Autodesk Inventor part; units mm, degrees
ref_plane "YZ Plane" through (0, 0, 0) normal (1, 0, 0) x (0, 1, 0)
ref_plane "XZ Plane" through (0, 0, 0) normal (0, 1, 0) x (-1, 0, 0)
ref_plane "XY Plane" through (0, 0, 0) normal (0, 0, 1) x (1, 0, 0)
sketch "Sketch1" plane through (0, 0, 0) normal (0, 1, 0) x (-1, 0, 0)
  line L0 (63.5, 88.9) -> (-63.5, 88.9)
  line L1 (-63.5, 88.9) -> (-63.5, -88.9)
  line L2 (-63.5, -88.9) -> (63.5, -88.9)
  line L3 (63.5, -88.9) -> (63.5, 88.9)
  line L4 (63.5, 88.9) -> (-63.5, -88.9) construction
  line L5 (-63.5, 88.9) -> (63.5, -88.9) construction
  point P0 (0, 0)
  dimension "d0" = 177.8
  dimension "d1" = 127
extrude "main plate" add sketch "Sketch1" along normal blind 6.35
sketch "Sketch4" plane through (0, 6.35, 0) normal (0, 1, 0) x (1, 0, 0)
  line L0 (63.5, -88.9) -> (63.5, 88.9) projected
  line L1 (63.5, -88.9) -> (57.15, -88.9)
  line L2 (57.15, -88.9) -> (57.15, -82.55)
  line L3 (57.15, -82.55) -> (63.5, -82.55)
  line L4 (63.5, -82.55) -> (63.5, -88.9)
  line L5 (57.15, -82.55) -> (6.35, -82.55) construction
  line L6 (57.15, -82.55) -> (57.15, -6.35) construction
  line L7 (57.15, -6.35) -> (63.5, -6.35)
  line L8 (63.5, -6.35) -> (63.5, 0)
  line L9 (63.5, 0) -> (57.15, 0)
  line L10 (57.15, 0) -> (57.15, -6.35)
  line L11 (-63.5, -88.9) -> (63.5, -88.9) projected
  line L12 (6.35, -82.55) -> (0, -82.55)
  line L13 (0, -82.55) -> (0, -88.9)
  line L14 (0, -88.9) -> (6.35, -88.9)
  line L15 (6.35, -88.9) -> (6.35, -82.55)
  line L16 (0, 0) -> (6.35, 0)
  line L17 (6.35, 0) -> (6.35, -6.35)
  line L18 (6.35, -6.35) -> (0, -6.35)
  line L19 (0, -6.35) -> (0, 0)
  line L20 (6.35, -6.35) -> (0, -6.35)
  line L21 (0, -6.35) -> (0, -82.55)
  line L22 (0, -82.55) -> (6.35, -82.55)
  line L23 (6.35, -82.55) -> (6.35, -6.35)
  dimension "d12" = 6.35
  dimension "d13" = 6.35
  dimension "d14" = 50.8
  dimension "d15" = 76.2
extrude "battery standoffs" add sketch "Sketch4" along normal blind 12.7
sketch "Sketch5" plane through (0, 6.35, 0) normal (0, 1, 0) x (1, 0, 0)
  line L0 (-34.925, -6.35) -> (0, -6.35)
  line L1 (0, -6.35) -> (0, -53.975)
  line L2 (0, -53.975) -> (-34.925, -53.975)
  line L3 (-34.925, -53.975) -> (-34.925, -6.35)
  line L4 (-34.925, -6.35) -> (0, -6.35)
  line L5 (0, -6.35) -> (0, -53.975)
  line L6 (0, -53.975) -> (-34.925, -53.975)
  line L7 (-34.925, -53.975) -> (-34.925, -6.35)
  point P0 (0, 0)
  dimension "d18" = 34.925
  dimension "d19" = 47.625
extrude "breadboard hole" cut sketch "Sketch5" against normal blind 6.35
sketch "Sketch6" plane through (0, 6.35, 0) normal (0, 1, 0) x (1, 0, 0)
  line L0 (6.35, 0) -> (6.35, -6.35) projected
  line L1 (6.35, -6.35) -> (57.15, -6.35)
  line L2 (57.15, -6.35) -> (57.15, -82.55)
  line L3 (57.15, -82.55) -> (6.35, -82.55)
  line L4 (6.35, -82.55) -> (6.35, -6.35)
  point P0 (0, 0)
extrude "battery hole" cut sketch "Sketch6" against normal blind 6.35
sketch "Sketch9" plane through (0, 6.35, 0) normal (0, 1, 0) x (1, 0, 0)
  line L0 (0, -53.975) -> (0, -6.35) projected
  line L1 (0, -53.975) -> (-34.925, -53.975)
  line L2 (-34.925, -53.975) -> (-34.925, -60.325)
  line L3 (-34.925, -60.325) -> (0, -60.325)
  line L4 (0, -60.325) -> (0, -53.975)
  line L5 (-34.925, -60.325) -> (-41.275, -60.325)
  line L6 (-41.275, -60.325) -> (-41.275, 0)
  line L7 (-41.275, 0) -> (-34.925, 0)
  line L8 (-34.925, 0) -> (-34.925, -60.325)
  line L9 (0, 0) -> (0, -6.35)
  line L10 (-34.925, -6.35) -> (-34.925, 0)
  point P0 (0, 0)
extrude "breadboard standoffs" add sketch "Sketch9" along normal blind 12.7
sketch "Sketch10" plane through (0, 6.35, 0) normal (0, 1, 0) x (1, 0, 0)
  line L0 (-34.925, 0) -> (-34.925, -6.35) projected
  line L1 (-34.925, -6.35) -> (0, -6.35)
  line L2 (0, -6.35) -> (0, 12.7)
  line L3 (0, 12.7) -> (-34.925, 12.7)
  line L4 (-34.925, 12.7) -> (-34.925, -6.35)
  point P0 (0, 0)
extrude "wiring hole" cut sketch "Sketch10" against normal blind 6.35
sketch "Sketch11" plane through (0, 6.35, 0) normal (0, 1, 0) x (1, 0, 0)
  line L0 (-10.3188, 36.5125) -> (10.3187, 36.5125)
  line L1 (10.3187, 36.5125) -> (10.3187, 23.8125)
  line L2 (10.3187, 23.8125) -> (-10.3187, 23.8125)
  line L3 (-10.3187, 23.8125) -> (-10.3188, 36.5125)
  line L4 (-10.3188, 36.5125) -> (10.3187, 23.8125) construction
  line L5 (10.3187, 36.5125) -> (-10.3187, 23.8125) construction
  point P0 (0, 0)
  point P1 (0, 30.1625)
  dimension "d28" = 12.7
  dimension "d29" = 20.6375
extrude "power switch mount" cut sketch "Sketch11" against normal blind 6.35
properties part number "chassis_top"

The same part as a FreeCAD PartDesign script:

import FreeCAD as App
import Part
import Sketcher

V = App.Vector
Q = App.Units.Quantity


def add_polygon(sketch, points):
    """Adds a closed chain of lines whose ends are joined by coincident constraints."""
    first, n = sketch.GeometryCount, len(points)
    for a, b in zip(points, points[1:] + points[:1]):
        sketch.addGeometry(Part.LineSegment(App.Vector(*a, 0), App.Vector(*b, 0)), False)
    for i in range(n):
        sketch.addConstraint(Sketcher.Constraint("Coincident", first + i, 2, first + (i + 1) % n, 1))

doc = App.newDocument("Part")
body = doc.addObject("PartDesign::Body", "Body")

# Sketch on XZ plane
sketch1 = body.newObject("Sketcher::SketchObject", "Sketch")
sketch1.AttachmentSupport = (doc.getObject("XZ_Plane"), [""])
sketch1.MapMode = "FlatFace"
add_polygon(sketch1, [(-63.5, -88.9), (-63.5, 88.9), (63.5, 88.9), (63.5, -88.9)])  # lines 0-3
sketch1.addConstraint(Sketcher.Constraint("Vertical", 0))
sketch1.addConstraint(Sketcher.Constraint("Horizontal", 1))
sketch1.addConstraint(Sketcher.Constraint("Vertical", 2))
sketch1.addConstraint(Sketcher.Constraint("Horizontal", 3))
sketch1.addConstraint(Sketcher.Constraint("Symmetric", 0, 2, 2, 2, -1, 1))
sketch1.addConstraint(Sketcher.Constraint("DistanceX", 1, 1, 1, 2, Q("5 in")))
sketch1.addConstraint(Sketcher.Constraint("DistanceY", 0, 1, 0, 2, Q("7 in")))
pad1 = body.newObject("PartDesign::Pad", "Pad")
pad1.Profile = sketch1
pad1.Length = Q("0.25 in")
pad1.Reversed = True

# Sketch on XZ plane
sketch2 = body.newObject("Sketcher::SketchObject", "Sketch001")
sketch2.AttachmentSupport = (doc.getObject("XZ_Plane"), [""])
sketch2.MapMode = "FlatFace"
sketch2.AttachmentOffset = App.Placement(V(0, 0, -0.25 * 25.4), App.Rotation())
add_polygon(sketch2, [(57.15, 88.9), (63.5, 88.9), (63.5, 82.55), (57.15, 82.55)])  # lines 0-3
add_polygon(sketch2, [(0, 88.9), (6.35, 88.9), (6.35, 0), (0, 0)])  # lines 4-7
add_polygon(sketch2, [(57.15, 6.35), (63.5, 6.35), (63.5, 0), (57.15, 0)])  # lines 8-11
sketch2.addConstraint(Sketcher.Constraint("Horizontal", 0))
sketch2.addConstraint(Sketcher.Constraint("Vertical", 1))
sketch2.addConstraint(Sketcher.Constraint("Horizontal", 2))
sketch2.addConstraint(Sketcher.Constraint("Vertical", 3))
sketch2.addConstraint(Sketcher.Constraint("Horizontal", 4))
sketch2.addConstraint(Sketcher.Constraint("Vertical", 5))
sketch2.addConstraint(Sketcher.Constraint("Horizontal", 6))
sketch2.addConstraint(Sketcher.Constraint("Vertical", 7))
sketch2.addConstraint(Sketcher.Constraint("Horizontal", 8))
sketch2.addConstraint(Sketcher.Constraint("Vertical", 9))
sketch2.addConstraint(Sketcher.Constraint("Horizontal", 10))
sketch2.addConstraint(Sketcher.Constraint("Vertical", 11))
sketch2.addConstraint(Sketcher.Constraint("Coincident", 6, 2, -1, 1))
sketch2.addConstraint(Sketcher.Constraint("PointOnObject", 9, 2, -1))
sketch2.addConstraint(Sketcher.Constraint("Horizontal", 3, 2, 4, 2))
sketch2.addConstraint(Sketcher.Constraint("Vertical", 1, 2, 8, 2))
sketch2.addConstraint(Sketcher.Constraint("Vertical", 3, 2, 10, 2))
sketch2.addConstraint(Sketcher.Constraint("Equal", 2, 4))
sketch2.addConstraint(Sketcher.Constraint("Equal", 10, 1))
sketch2.addConstraint(Sketcher.Constraint("Equal", 3, 9))
sketch2.addConstraint(Sketcher.Constraint("DistanceX", 4, 2, 3, 2, Q("2 in")))
sketch2.addConstraint(Sketcher.Constraint("DistanceY", 8, 2, 1, 2, Q("3 in")))
sketch2.addConstraint(Sketcher.Constraint("DistanceX", 0, 1, 0, 2, Q("0.25 in")))
pad2 = body.newObject("PartDesign::Pad", "Pad001")
pad2.Profile = sketch2
pad2.Length = Q("0.5 in")
pad2.Reversed = True

# Sketch on XZ plane
sketch3 = body.newObject("Sketcher::SketchObject", "Sketch002")
sketch3.AttachmentSupport = (doc.getObject("XZ_Plane"), [""])
sketch3.MapMode = "FlatFace"
sketch3.AttachmentOffset = App.Placement(V(0, 0, -0.25 * 25.4), App.Rotation())
add_polygon(sketch3, [(0, 6.35), (-34.925, 6.35), (-34.925, 53.975), (0, 53.975)])  # lines 0-3
sketch3.addConstraint(Sketcher.Constraint("Horizontal", 0))
sketch3.addConstraint(Sketcher.Constraint("Vertical", 1))
sketch3.addConstraint(Sketcher.Constraint("Horizontal", 2))
sketch3.addConstraint(Sketcher.Constraint("Vertical", 3))
sketch3.addConstraint(Sketcher.Constraint("PointOnObject", 2, 2, -2))
sketch3.addConstraint(Sketcher.Constraint("DistanceX", 0, 2, 0, 1, Q("1.375 in")))
sketch3.addConstraint(Sketcher.Constraint("DistanceY", 1, 1, 1, 2, Q("1.875 in")))
sketch3.addConstraint(Sketcher.Constraint("DistanceY", -1, 1, 0, 2, Q("0.25 in")))
pocket1 = body.newObject("PartDesign::Pocket", "Pocket")
pocket1.Profile = sketch3
pocket1.Length = Q("0.25 in")
pocket1.Reversed = True

# Sketch on XZ plane
sketch4 = body.newObject("Sketcher::SketchObject", "Sketch003")
sketch4.AttachmentSupport = (doc.getObject("XZ_Plane"), [""])
sketch4.MapMode = "FlatFace"
sketch4.AttachmentOffset = App.Placement(V(0, 0, -0.25 * 25.4), App.Rotation())
add_polygon(sketch4, [(57.15, 6.35), (6.35, 6.35), (6.35, 82.55), (57.15, 82.55)])  # lines 0-3
sketch4.addConstraint(Sketcher.Constraint("Horizontal", 0))
sketch4.addConstraint(Sketcher.Constraint("Vertical", 1))
sketch4.addConstraint(Sketcher.Constraint("Horizontal", 2))
sketch4.addConstraint(Sketcher.Constraint("Vertical", 3))
sketch4.addConstraint(Sketcher.Constraint("DistanceX", 0, 2, 0, 1, Q("2 in")))
sketch4.addConstraint(Sketcher.Constraint("DistanceY", 1, 1, 1, 2, Q("3 in")))
sketch4.addConstraint(Sketcher.Constraint("DistanceX", -1, 1, 0, 2, Q("0.25 in")))
sketch4.addConstraint(Sketcher.Constraint("DistanceY", -1, 1, 0, 2, Q("0.25 in")))
pocket2 = body.newObject("PartDesign::Pocket", "Pocket001")
pocket2.Profile = sketch4
pocket2.Length = Q("0.25 in")
pocket2.Reversed = True

# Sketch on XZ plane
sketch5 = body.newObject("Sketcher::SketchObject", "Sketch004")
sketch5.AttachmentSupport = (doc.getObject("XZ_Plane"), [""])
sketch5.MapMode = "FlatFace"
sketch5.AttachmentOffset = App.Placement(V(0, 0, -0.25 * 25.4), App.Rotation())
add_polygon(sketch5, [(0, 60.325), (0, 53.975), (-34.925, 53.975), (-34.925, 0), (-41.275, 0), (-41.275, 60.325)])  # lines 0-5
sketch5.addConstraint(Sketcher.Constraint("Vertical", 0))
sketch5.addConstraint(Sketcher.Constraint("Horizontal", 1))
sketch5.addConstraint(Sketcher.Constraint("Vertical", 2))
sketch5.addConstraint(Sketcher.Constraint("Horizontal", 3))
sketch5.addConstraint(Sketcher.Constraint("Vertical", 4))
sketch5.addConstraint(Sketcher.Constraint("Horizontal", 5))
sketch5.addConstraint(Sketcher.Constraint("PointOnObject", 0, 2, -2))
sketch5.addConstraint(Sketcher.Constraint("PointOnObject", 2, 2, -1))
sketch5.addConstraint(Sketcher.Constraint("Equal", 3, 0))
sketch5.addConstraint(Sketcher.Constraint("DistanceX", 3, 2, 3, 1, Q("0.25 in")))
sketch5.addConstraint(Sketcher.Constraint("DistanceX", 1, 2, 1, 1, Q("1.375 in")))
sketch5.addConstraint(Sketcher.Constraint("DistanceY", 2, 2, 2, 1, Q("2.125 in")))
pad3 = body.newObject("PartDesign::Pad", "Pad002")
pad3.Profile = sketch5
pad3.Length = Q("0.5 in")
pad3.Reversed = True

# Sketch on XZ plane
sketch6 = body.newObject("Sketcher::SketchObject", "Sketch005")
sketch6.AttachmentSupport = (doc.getObject("XZ_Plane"), [""])
sketch6.MapMode = "FlatFace"
sketch6.AttachmentOffset = App.Placement(V(0, 0, -0.25 * 25.4), App.Rotation())
add_polygon(sketch6, [(-34.925, -12.7), (-34.925, 6.35), (0, 6.35), (0, -12.7)])  # lines 0-3
sketch6.addConstraint(Sketcher.Constraint("Vertical", 0))
sketch6.addConstraint(Sketcher.Constraint("Horizontal", 1))
sketch6.addConstraint(Sketcher.Constraint("Vertical", 2))
sketch6.addConstraint(Sketcher.Constraint("Horizontal", 3))
sketch6.addConstraint(Sketcher.Constraint("PointOnObject", 1, 2, -2))
sketch6.addConstraint(Sketcher.Constraint("DistanceY", 0, 1, 0, 2, Q("0.75 in")))
sketch6.addConstraint(Sketcher.Constraint("DistanceY", 2, 2, -1, 1, Q("0.5 in")))
sketch6.addConstraint(Sketcher.Constraint("DistanceX", 1, 1, 1, 2, Q("1.375 in")))
pocket3 = body.newObject("PartDesign::Pocket", "Pocket002")
pocket3.Profile = sketch6
pocket3.Length = Q("0.25 in")
pocket3.Reversed = True

# Sketch on XZ plane
sketch7 = body.newObject("Sketcher::SketchObject", "Sketch006")
sketch7.AttachmentSupport = (doc.getObject("XZ_Plane"), [""])
sketch7.MapMode = "FlatFace"
sketch7.AttachmentOffset = App.Placement(V(0, 0, -0.25 * 25.4), App.Rotation())
add_polygon(sketch7, [(10.3187, -36.5125), (-10.3188, -36.5125), (-10.3187, -23.8125), (10.3187, -23.8125)])  # lines 0-3
sketch7.addConstraint(Sketcher.Constraint("Horizontal", 0))
sketch7.addConstraint(Sketcher.Constraint("Vertical", 1))
sketch7.addConstraint(Sketcher.Constraint("Horizontal", 2))
sketch7.addConstraint(Sketcher.Constraint("Vertical", 3))
sketch7.addConstraint(Sketcher.Constraint("DistanceY", 1, 1, 1, 2, Q("0.5 in")))
sketch7.addConstraint(Sketcher.Constraint("DistanceX", 0, 2, 0, 1, Q("0.8125 in")))
sketch7.addConstraint(Sketcher.Constraint("DistanceX", 0, 2, -1, 1, Q("0.406252 in")))
sketch7.addConstraint(Sketcher.Constraint("DistanceY", 0, 2, -1, 1, Q("1.4375 in")))
pocket4 = body.newObject("PartDesign::Pocket", "Pocket003")
pocket4.Profile = sketch7
pocket4.Length = Q("0.25 in")
pocket4.Reversed = True

doc.recompute()
